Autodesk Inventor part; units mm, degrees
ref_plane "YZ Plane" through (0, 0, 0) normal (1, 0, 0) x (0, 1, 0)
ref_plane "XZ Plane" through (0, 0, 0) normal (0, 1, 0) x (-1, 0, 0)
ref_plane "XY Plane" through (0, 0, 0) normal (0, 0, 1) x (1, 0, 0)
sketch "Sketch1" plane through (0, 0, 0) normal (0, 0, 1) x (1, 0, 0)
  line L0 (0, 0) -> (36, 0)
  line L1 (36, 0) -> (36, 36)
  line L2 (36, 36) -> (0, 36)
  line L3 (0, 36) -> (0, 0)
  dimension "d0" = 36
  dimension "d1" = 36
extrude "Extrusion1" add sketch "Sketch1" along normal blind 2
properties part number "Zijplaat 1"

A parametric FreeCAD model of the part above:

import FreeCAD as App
import Part
import Sketcher

V = App.Vector
Q = App.Units.Quantity


def add_polygon(sketch, points):
    """Adds a closed chain of lines whose ends are joined by coincident constraints."""
    first, n = sketch.GeometryCount, len(points)
    for a, b in zip(points, points[1:] + points[:1]):
        sketch.addGeometry(Part.LineSegment(App.Vector(*a, 0), App.Vector(*b, 0)), False)
    for i in range(n):
        sketch.addConstraint(Sketcher.Constraint("Coincident", first + i, 2, first + (i + 1) % n, 1))

doc = App.newDocument("Part")
body = doc.addObject("PartDesign::Body", "Body")

# Sketch on XY plane
sketch1 = doc.addObject("Sketcher::SketchObject", "Sketch")
body.addObject(sketch1)
sketch1.AttachmentSupport = (doc.XY_Plane, [""])
sketch1.MapMode = "FlatFace"
add_polygon(sketch1, [(0, 36), (0, 0), (36, 0), (36, 36)])  # lines 0-3
sketch1.addConstraint(Sketcher.Constraint("Vertical", 0))
sketch1.addConstraint(Sketcher.Constraint("Horizontal", 1))
sketch1.addConstraint(Sketcher.Constraint("Vertical", 2))
sketch1.addConstraint(Sketcher.Constraint("Horizontal", 3))
sketch1.addConstraint(Sketcher.Constraint("Coincident", 0, 2, -1, 1))
sketch1.addConstraint(Sketcher.Constraint("Equal", 3, 0))
sketch1.addConstraint(Sketcher.Constraint("DistanceX", 1, 1, 1, 2, Q("36 mm")))
pad1 = doc.addObject("PartDesign::Pad", "Pad")
body.addObject(pad1)
pad1.Profile = sketch1
pad1.Length = 2

doc.recompute()
